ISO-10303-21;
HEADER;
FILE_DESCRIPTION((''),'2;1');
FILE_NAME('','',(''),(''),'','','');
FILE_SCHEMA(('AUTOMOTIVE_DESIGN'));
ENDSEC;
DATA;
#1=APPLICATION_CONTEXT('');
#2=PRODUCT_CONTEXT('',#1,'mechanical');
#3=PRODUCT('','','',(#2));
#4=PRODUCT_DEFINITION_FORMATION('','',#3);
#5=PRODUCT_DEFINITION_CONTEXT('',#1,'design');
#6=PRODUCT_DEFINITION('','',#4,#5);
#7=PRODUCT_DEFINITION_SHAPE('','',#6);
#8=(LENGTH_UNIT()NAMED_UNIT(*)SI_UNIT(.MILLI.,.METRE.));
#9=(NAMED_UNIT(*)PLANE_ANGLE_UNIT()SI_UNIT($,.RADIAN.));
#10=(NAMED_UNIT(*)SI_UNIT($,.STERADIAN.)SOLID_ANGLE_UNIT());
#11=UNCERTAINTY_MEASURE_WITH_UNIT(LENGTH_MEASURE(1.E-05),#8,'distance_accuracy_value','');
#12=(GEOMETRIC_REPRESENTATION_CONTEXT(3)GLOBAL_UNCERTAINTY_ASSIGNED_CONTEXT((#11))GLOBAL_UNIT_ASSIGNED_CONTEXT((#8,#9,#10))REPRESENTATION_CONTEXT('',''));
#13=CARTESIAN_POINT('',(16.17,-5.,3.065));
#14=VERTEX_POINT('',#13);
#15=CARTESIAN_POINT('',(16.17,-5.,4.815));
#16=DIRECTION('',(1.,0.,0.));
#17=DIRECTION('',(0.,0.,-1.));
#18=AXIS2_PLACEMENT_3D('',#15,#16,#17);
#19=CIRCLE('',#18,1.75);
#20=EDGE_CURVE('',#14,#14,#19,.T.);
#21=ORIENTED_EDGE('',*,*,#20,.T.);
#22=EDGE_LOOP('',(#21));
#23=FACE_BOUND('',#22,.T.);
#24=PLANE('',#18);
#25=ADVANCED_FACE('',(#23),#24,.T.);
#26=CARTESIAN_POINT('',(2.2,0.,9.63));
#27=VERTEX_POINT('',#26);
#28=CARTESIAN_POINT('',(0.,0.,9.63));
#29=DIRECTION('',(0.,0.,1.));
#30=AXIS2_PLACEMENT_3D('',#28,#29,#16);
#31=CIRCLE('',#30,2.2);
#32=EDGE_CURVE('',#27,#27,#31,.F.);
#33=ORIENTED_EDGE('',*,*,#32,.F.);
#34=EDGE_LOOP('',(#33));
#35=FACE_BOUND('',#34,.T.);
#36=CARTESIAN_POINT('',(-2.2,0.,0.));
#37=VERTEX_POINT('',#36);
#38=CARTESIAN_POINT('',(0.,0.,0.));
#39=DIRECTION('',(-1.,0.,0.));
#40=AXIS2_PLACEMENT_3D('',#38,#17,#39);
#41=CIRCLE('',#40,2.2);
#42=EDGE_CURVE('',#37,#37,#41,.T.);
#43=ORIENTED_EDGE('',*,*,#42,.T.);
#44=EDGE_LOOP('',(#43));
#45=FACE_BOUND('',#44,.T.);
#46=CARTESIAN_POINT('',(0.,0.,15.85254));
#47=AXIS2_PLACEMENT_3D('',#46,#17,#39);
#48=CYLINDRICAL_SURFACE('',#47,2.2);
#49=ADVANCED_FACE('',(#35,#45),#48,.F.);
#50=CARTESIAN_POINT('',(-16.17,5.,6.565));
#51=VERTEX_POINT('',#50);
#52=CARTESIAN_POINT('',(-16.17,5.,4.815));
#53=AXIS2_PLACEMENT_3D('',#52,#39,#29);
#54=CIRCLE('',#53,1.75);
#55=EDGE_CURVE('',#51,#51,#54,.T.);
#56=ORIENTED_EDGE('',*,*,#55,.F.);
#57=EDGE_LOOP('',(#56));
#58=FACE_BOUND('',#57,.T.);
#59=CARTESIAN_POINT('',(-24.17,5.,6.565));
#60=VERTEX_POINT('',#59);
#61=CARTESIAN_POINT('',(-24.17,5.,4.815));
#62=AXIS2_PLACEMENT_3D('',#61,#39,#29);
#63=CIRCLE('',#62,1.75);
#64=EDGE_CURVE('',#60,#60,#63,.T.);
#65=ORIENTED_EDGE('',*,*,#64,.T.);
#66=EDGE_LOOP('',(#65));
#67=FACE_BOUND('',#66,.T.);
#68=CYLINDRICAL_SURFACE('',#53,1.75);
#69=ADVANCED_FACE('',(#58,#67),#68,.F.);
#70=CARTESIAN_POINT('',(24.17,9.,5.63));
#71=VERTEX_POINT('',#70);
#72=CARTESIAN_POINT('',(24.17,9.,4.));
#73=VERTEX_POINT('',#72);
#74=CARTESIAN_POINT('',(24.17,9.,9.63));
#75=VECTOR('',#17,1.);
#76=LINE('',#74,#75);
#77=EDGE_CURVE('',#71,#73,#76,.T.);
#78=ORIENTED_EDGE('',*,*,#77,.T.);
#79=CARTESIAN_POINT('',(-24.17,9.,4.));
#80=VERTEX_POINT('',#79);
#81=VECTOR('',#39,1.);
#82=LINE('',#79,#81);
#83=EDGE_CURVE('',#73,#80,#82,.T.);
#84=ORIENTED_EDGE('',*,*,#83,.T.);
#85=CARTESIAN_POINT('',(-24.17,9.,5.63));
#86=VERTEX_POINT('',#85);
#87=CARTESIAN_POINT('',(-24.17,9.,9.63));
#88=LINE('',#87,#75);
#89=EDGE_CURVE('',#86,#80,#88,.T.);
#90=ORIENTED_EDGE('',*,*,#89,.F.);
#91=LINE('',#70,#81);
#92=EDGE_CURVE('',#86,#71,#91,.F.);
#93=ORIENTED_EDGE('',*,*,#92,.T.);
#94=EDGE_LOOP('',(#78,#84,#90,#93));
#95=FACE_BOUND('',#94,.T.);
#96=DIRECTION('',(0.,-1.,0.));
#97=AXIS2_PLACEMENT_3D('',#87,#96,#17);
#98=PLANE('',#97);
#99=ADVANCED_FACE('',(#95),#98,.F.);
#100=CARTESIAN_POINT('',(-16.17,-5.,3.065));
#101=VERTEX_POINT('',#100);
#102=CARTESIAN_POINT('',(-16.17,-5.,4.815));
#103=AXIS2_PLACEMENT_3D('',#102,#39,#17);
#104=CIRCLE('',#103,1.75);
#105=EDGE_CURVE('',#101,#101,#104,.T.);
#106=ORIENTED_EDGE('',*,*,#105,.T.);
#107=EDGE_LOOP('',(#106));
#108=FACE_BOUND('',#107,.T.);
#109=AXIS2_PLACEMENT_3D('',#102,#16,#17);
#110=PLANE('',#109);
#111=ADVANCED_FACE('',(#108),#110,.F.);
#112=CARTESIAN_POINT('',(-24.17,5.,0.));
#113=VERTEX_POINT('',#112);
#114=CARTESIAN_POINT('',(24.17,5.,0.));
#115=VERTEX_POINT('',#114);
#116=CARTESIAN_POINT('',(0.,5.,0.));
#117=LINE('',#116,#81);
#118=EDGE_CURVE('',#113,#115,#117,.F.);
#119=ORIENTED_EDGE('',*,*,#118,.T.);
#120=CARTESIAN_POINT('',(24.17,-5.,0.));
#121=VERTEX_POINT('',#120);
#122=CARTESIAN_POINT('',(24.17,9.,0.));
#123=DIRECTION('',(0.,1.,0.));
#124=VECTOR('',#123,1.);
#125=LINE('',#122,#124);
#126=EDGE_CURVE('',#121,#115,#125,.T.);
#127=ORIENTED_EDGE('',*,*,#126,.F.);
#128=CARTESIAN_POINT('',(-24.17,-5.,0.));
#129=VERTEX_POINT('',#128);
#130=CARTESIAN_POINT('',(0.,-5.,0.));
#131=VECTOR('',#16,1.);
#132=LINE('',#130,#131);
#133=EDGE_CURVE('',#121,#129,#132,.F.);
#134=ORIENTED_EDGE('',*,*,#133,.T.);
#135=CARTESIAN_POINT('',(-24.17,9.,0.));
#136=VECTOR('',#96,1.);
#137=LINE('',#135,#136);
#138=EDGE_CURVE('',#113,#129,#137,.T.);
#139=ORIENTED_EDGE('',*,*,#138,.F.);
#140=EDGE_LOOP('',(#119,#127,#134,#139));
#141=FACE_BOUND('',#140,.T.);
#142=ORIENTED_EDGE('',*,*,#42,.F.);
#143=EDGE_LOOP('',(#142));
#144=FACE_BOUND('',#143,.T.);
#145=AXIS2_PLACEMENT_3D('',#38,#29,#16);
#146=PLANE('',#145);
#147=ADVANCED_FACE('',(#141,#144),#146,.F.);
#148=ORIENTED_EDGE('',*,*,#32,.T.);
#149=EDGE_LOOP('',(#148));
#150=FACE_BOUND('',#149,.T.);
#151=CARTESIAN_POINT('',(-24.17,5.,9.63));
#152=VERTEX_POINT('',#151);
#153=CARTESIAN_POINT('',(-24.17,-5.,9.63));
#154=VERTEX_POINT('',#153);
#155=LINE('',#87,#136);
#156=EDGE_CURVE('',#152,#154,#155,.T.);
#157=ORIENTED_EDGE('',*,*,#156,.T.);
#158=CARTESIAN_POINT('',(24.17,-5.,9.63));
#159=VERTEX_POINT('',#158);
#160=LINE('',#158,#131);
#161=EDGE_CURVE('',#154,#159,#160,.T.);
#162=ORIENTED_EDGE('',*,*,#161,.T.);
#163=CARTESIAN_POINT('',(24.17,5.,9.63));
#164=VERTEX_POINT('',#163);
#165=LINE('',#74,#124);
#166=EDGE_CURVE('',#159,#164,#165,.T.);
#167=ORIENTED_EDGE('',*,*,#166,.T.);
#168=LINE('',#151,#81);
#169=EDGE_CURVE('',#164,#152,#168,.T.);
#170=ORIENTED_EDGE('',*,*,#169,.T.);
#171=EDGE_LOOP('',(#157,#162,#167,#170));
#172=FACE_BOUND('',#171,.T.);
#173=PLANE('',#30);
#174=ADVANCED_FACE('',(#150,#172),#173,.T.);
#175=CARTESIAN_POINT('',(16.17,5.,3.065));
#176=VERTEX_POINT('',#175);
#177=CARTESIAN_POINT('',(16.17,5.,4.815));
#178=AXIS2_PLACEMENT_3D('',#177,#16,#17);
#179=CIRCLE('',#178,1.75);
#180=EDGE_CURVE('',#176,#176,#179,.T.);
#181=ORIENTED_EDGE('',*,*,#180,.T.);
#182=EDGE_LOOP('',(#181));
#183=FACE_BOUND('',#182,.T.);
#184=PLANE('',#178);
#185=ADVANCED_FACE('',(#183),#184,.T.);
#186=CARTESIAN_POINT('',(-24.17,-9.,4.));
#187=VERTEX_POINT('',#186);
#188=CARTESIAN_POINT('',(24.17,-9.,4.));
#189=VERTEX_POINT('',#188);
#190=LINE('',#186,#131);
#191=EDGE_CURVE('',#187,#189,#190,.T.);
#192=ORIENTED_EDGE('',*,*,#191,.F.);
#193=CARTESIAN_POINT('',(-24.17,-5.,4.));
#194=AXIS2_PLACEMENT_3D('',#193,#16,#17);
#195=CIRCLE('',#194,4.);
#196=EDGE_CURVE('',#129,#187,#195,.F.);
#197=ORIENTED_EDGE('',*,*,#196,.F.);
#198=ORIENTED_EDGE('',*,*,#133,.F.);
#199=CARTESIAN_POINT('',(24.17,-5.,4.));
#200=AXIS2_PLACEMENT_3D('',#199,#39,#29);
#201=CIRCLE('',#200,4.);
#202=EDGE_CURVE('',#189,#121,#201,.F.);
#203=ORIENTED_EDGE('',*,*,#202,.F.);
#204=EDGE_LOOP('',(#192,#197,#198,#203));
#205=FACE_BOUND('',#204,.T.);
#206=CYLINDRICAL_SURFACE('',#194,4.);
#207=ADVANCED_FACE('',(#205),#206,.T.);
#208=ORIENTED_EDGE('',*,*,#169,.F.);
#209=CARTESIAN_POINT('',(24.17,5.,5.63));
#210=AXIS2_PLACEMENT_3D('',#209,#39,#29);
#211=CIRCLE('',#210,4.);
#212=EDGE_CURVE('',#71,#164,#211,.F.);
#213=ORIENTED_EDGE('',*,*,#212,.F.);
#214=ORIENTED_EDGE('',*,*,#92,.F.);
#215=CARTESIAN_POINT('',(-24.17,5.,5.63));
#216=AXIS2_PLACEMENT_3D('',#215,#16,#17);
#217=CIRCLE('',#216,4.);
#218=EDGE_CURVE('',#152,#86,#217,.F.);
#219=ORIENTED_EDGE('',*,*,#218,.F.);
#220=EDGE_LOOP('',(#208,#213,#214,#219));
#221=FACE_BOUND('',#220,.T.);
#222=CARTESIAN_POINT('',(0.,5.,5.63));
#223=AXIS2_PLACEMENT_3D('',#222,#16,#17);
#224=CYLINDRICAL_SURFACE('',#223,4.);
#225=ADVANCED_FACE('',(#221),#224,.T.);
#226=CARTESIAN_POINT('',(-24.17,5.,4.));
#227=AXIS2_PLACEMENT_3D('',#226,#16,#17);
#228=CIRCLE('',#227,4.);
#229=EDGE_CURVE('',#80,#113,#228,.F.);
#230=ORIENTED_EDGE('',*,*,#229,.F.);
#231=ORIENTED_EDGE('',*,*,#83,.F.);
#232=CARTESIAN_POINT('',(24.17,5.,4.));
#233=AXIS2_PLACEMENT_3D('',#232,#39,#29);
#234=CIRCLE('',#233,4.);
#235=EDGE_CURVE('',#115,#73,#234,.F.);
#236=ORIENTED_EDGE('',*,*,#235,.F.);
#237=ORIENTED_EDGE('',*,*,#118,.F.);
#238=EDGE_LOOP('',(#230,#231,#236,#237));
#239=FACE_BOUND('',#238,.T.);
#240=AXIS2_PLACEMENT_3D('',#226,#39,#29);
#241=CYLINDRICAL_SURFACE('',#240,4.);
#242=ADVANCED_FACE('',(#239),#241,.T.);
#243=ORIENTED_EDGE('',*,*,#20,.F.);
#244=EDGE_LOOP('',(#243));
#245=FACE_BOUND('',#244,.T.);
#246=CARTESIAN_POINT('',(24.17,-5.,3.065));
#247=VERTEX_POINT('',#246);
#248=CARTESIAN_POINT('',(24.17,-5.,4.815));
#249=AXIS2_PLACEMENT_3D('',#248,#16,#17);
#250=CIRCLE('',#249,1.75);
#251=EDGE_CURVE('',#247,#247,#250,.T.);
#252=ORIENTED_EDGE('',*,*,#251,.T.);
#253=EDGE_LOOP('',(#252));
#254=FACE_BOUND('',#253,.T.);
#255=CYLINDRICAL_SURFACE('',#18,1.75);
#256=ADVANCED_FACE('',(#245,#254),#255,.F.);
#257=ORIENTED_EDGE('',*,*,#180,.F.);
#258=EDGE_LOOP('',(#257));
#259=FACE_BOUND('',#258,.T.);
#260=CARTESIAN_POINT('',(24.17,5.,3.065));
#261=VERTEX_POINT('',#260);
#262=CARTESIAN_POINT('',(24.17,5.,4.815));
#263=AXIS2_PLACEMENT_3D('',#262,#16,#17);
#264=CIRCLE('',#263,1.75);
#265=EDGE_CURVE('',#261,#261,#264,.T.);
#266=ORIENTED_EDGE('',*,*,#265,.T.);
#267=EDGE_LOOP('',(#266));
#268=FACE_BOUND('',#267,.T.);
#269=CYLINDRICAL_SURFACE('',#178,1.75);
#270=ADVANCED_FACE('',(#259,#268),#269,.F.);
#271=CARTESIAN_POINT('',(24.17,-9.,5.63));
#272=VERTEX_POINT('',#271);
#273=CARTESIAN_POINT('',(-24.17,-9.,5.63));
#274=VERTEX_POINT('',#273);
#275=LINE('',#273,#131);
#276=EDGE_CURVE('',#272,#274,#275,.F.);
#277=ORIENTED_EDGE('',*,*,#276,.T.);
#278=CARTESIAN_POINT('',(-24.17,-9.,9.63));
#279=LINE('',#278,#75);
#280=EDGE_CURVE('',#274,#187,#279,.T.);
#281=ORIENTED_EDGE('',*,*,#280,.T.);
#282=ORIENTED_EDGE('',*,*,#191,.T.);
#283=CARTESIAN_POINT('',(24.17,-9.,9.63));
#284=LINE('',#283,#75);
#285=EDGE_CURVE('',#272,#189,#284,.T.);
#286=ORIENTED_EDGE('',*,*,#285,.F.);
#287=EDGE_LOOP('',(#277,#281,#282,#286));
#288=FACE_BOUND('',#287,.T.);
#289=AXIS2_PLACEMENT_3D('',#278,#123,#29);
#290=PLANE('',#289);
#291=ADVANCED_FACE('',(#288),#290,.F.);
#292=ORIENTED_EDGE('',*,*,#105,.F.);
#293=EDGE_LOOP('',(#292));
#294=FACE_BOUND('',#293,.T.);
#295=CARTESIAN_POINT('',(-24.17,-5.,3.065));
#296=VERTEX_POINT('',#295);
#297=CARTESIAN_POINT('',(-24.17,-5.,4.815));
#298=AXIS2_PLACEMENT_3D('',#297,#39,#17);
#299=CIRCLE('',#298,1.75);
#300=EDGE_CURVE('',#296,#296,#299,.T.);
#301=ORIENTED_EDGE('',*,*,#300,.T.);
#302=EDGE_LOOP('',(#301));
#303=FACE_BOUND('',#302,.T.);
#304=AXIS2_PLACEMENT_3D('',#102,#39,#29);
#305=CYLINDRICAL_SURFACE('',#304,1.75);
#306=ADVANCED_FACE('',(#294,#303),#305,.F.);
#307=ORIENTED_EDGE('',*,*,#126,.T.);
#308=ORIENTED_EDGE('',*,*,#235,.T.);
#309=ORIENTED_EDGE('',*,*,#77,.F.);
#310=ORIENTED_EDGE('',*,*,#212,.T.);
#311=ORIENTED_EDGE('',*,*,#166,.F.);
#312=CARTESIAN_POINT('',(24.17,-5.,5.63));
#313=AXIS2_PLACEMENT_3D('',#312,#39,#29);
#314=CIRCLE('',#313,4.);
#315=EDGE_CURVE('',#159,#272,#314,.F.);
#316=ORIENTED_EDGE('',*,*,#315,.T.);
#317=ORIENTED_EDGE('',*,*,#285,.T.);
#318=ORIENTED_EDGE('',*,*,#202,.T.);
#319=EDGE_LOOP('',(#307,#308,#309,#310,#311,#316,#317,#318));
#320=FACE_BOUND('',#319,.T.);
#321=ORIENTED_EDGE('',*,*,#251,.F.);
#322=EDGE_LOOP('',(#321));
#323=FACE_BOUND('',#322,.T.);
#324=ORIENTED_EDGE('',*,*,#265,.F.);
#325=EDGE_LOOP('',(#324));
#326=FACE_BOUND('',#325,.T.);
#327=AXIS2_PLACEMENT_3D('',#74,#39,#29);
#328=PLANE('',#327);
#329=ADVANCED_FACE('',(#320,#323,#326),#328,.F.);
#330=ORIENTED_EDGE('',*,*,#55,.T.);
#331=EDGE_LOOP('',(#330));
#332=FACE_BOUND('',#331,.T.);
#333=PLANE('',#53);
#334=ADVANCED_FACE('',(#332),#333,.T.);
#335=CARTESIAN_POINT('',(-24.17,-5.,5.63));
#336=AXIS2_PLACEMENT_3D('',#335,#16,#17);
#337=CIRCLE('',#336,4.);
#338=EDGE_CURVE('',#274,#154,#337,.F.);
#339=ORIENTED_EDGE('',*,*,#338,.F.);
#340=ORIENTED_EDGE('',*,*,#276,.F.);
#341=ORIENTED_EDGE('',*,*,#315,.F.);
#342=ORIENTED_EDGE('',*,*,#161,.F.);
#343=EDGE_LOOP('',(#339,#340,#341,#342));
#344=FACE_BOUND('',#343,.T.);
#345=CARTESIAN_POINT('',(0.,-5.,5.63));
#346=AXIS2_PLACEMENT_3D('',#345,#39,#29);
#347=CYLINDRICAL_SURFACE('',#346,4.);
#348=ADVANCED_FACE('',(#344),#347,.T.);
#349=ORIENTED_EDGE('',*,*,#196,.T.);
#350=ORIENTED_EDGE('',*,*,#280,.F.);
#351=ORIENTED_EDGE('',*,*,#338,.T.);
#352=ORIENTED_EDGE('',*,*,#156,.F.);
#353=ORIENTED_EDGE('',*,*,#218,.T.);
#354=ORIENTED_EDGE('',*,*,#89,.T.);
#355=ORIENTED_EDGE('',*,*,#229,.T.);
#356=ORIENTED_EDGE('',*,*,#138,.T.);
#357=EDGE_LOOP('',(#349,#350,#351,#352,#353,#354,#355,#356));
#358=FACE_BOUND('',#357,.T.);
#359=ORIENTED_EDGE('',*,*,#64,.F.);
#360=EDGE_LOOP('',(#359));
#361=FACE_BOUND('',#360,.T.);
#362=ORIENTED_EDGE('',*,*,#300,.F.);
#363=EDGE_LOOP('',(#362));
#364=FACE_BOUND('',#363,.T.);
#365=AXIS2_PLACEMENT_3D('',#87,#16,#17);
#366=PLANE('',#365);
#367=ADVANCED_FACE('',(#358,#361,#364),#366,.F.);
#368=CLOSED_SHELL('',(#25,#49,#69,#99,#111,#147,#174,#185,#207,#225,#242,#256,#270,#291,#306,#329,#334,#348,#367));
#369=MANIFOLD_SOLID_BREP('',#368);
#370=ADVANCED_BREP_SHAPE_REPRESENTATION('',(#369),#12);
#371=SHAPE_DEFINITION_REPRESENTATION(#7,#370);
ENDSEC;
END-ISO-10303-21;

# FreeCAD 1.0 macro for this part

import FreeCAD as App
import Part
import Sketcher
from FreeCAD import Vector


def edges_at(feature, points):
    """Names of the edges that pass closest to the given points."""
    edges = feature.Shape.Edges
    near = lambda p: min(range(len(edges)), key=lambda i: edges[i].distToShape(Part.Vertex(*p))[0])
    return sorted({f"Edge{near(p) + 1}" for p in points})

doc = App.newDocument("Part")
body = doc.addObject("PartDesign::Body", "Body")

# Sketch on XY plane
sketch1 = body.newObject("Sketcher::SketchObject", "Sketch")
sketch1.AttachmentSupport = (doc.getObject("XY_Plane"), [""])
sketch1.MapMode = "FlatFace"
sketch1.addGeometry(Part.LineSegment(Vector(-24, 9, 0), Vector(-24, -9, 0)), False)
sketch1.addGeometry(Part.LineSegment(Vector(-24, -9, 0), Vector(24, -9, 0)), False)
sketch1.addGeometry(Part.LineSegment(Vector(24, -9, 0), Vector(24, 9, 0)), False)
sketch1.addGeometry(Part.LineSegment(Vector(24, 9, 0), Vector(-24, 9, 0)), False)
sketch1.addConstraint(Sketcher.Constraint("Coincident", 0, 2, 1, 1))
sketch1.addConstraint(Sketcher.Constraint("Coincident", 1, 2, 2, 1))
sketch1.addConstraint(Sketcher.Constraint("Coincident", 2, 2, 3, 1))
sketch1.addConstraint(Sketcher.Constraint("Coincident", 3, 2, 0, 1))
sketch1.addConstraint(Sketcher.Constraint("Vertical", 0))
sketch1.addConstraint(Sketcher.Constraint("Horizontal", 1))
sketch1.addConstraint(Sketcher.Constraint("Vertical", 2))
sketch1.addConstraint(Sketcher.Constraint("Horizontal", 3))
sketch1.addConstraint(Sketcher.Constraint("Symmetric", 0, 2, 2, 2, -1, 1))
sketch1.addConstraint(Sketcher.Constraint("DistanceY", 0, 2, 0, 1, 18.0))
sketch1.addConstraint(Sketcher.Constraint("DistanceX", 1, 1, 1, 2, 48.34))
pad1 = body.newObject("PartDesign::Pad", "Pad")
pad1.Profile = sketch1
pad1.Length = 9.63

# Sketch on YZ plane
sketch2 = body.newObject("Sketcher::SketchObject", "Sketch001")
sketch2.AttachmentSupport = (doc.getObject("YZ_Plane"), [""])
sketch2.MapMode = "FlatFace"
sketch2.AttachmentOffset = App.Placement(Vector(0, 0, -24.17), App.Rotation())
sketch2.addGeometry(Part.Circle(Vector(5, 4.8, 0), Vector(0, 0, 1), 1.8), False)
sketch2.addGeometry(Part.Circle(Vector(-5, 4.8, 0), Vector(0, 0, 1), 1.8), False)
sketch2.addConstraint(Sketcher.Constraint("Equal", 0, 1))
sketch2.addConstraint(Sketcher.Constraint("Symmetric", 0, 3, 1, 3, -2))
sketch2.addConstraint(Sketcher.Constraint("Diameter", 0, 3.5))
sketch2.addConstraint(Sketcher.Constraint("DistanceX", -1, 1, 0, 3, 5.0))
sketch2.addConstraint(Sketcher.Constraint("DistanceY", -1, 1, 0, 3, 4.815))
pocket1 = body.newObject("PartDesign::Pocket", "Pocket")
pocket1.Profile = sketch2
pocket1.Length = 8
pocket1.Reversed = True

# Sketch on YZ plane
sketch3 = body.newObject("Sketcher::SketchObject", "Sketch002")
sketch3.AttachmentSupport = (doc.getObject("YZ_Plane"), [""])
sketch3.MapMode = "FlatFace"
sketch3.AttachmentOffset = App.Placement(Vector(0, 0, 16.17), App.Rotation())
sketch3.addGeometry(Part.Circle(Vector(-5, 4.8, 0), Vector(0, 0, 1), 1.8), False)
sketch3.addGeometry(Part.Circle(Vector(5, 4.8, 0), Vector(0, 0, 1), 1.8), False)
sketch3.addConstraint(Sketcher.Constraint("Equal", 0, 1))
sketch3.addConstraint(Sketcher.Constraint("Symmetric", 0, 3, 1, 3, -2))
sketch3.addConstraint(Sketcher.Constraint("Diameter", 0, 3.5))
sketch3.addConstraint(Sketcher.Constraint("DistanceX", 0, 3, -1, 1, 5.0))
sketch3.addConstraint(Sketcher.Constraint("DistanceY", -1, 1, 0, 3, 4.815))
pocket2 = body.newObject("PartDesign::Pocket", "Pocket001")
pocket2.Profile = sketch3
pocket2.Length = 8
pocket2.Reversed = True

# Sketch on XY plane
sketch4 = body.newObject("Sketcher::SketchObject", "Sketch003")
sketch4.AttachmentSupport = (doc.getObject("XY_Plane"), [""])
sketch4.MapMode = "FlatFace"
sketch4.addGeometry(Part.Circle(Vector(0, 0, 0), Vector(0, 0, 1), 2.2), False)
sketch4.addConstraint(Sketcher.Constraint("Coincident", 0, 3, -1, 1))
sketch4.addConstraint(Sketcher.Constraint("Diameter", 0, 4.4))
pocket3 = body.newObject("PartDesign::Pocket", "Pocket002")
pocket3.Profile = sketch4
pocket3.Length = 9.63
pocket3.Reversed = True
doc.recompute()

fillet = body.newObject("PartDesign::Fillet", "Fillet")
fillet.Base = (pocket3, edges_at(pocket3, [
    (0, -9, 9.63),
    (0, -9, 0),
    (0, 9, 0),
    (0, 9, 9.63),
]))
fillet.Radius = 4

doc.recompute()
